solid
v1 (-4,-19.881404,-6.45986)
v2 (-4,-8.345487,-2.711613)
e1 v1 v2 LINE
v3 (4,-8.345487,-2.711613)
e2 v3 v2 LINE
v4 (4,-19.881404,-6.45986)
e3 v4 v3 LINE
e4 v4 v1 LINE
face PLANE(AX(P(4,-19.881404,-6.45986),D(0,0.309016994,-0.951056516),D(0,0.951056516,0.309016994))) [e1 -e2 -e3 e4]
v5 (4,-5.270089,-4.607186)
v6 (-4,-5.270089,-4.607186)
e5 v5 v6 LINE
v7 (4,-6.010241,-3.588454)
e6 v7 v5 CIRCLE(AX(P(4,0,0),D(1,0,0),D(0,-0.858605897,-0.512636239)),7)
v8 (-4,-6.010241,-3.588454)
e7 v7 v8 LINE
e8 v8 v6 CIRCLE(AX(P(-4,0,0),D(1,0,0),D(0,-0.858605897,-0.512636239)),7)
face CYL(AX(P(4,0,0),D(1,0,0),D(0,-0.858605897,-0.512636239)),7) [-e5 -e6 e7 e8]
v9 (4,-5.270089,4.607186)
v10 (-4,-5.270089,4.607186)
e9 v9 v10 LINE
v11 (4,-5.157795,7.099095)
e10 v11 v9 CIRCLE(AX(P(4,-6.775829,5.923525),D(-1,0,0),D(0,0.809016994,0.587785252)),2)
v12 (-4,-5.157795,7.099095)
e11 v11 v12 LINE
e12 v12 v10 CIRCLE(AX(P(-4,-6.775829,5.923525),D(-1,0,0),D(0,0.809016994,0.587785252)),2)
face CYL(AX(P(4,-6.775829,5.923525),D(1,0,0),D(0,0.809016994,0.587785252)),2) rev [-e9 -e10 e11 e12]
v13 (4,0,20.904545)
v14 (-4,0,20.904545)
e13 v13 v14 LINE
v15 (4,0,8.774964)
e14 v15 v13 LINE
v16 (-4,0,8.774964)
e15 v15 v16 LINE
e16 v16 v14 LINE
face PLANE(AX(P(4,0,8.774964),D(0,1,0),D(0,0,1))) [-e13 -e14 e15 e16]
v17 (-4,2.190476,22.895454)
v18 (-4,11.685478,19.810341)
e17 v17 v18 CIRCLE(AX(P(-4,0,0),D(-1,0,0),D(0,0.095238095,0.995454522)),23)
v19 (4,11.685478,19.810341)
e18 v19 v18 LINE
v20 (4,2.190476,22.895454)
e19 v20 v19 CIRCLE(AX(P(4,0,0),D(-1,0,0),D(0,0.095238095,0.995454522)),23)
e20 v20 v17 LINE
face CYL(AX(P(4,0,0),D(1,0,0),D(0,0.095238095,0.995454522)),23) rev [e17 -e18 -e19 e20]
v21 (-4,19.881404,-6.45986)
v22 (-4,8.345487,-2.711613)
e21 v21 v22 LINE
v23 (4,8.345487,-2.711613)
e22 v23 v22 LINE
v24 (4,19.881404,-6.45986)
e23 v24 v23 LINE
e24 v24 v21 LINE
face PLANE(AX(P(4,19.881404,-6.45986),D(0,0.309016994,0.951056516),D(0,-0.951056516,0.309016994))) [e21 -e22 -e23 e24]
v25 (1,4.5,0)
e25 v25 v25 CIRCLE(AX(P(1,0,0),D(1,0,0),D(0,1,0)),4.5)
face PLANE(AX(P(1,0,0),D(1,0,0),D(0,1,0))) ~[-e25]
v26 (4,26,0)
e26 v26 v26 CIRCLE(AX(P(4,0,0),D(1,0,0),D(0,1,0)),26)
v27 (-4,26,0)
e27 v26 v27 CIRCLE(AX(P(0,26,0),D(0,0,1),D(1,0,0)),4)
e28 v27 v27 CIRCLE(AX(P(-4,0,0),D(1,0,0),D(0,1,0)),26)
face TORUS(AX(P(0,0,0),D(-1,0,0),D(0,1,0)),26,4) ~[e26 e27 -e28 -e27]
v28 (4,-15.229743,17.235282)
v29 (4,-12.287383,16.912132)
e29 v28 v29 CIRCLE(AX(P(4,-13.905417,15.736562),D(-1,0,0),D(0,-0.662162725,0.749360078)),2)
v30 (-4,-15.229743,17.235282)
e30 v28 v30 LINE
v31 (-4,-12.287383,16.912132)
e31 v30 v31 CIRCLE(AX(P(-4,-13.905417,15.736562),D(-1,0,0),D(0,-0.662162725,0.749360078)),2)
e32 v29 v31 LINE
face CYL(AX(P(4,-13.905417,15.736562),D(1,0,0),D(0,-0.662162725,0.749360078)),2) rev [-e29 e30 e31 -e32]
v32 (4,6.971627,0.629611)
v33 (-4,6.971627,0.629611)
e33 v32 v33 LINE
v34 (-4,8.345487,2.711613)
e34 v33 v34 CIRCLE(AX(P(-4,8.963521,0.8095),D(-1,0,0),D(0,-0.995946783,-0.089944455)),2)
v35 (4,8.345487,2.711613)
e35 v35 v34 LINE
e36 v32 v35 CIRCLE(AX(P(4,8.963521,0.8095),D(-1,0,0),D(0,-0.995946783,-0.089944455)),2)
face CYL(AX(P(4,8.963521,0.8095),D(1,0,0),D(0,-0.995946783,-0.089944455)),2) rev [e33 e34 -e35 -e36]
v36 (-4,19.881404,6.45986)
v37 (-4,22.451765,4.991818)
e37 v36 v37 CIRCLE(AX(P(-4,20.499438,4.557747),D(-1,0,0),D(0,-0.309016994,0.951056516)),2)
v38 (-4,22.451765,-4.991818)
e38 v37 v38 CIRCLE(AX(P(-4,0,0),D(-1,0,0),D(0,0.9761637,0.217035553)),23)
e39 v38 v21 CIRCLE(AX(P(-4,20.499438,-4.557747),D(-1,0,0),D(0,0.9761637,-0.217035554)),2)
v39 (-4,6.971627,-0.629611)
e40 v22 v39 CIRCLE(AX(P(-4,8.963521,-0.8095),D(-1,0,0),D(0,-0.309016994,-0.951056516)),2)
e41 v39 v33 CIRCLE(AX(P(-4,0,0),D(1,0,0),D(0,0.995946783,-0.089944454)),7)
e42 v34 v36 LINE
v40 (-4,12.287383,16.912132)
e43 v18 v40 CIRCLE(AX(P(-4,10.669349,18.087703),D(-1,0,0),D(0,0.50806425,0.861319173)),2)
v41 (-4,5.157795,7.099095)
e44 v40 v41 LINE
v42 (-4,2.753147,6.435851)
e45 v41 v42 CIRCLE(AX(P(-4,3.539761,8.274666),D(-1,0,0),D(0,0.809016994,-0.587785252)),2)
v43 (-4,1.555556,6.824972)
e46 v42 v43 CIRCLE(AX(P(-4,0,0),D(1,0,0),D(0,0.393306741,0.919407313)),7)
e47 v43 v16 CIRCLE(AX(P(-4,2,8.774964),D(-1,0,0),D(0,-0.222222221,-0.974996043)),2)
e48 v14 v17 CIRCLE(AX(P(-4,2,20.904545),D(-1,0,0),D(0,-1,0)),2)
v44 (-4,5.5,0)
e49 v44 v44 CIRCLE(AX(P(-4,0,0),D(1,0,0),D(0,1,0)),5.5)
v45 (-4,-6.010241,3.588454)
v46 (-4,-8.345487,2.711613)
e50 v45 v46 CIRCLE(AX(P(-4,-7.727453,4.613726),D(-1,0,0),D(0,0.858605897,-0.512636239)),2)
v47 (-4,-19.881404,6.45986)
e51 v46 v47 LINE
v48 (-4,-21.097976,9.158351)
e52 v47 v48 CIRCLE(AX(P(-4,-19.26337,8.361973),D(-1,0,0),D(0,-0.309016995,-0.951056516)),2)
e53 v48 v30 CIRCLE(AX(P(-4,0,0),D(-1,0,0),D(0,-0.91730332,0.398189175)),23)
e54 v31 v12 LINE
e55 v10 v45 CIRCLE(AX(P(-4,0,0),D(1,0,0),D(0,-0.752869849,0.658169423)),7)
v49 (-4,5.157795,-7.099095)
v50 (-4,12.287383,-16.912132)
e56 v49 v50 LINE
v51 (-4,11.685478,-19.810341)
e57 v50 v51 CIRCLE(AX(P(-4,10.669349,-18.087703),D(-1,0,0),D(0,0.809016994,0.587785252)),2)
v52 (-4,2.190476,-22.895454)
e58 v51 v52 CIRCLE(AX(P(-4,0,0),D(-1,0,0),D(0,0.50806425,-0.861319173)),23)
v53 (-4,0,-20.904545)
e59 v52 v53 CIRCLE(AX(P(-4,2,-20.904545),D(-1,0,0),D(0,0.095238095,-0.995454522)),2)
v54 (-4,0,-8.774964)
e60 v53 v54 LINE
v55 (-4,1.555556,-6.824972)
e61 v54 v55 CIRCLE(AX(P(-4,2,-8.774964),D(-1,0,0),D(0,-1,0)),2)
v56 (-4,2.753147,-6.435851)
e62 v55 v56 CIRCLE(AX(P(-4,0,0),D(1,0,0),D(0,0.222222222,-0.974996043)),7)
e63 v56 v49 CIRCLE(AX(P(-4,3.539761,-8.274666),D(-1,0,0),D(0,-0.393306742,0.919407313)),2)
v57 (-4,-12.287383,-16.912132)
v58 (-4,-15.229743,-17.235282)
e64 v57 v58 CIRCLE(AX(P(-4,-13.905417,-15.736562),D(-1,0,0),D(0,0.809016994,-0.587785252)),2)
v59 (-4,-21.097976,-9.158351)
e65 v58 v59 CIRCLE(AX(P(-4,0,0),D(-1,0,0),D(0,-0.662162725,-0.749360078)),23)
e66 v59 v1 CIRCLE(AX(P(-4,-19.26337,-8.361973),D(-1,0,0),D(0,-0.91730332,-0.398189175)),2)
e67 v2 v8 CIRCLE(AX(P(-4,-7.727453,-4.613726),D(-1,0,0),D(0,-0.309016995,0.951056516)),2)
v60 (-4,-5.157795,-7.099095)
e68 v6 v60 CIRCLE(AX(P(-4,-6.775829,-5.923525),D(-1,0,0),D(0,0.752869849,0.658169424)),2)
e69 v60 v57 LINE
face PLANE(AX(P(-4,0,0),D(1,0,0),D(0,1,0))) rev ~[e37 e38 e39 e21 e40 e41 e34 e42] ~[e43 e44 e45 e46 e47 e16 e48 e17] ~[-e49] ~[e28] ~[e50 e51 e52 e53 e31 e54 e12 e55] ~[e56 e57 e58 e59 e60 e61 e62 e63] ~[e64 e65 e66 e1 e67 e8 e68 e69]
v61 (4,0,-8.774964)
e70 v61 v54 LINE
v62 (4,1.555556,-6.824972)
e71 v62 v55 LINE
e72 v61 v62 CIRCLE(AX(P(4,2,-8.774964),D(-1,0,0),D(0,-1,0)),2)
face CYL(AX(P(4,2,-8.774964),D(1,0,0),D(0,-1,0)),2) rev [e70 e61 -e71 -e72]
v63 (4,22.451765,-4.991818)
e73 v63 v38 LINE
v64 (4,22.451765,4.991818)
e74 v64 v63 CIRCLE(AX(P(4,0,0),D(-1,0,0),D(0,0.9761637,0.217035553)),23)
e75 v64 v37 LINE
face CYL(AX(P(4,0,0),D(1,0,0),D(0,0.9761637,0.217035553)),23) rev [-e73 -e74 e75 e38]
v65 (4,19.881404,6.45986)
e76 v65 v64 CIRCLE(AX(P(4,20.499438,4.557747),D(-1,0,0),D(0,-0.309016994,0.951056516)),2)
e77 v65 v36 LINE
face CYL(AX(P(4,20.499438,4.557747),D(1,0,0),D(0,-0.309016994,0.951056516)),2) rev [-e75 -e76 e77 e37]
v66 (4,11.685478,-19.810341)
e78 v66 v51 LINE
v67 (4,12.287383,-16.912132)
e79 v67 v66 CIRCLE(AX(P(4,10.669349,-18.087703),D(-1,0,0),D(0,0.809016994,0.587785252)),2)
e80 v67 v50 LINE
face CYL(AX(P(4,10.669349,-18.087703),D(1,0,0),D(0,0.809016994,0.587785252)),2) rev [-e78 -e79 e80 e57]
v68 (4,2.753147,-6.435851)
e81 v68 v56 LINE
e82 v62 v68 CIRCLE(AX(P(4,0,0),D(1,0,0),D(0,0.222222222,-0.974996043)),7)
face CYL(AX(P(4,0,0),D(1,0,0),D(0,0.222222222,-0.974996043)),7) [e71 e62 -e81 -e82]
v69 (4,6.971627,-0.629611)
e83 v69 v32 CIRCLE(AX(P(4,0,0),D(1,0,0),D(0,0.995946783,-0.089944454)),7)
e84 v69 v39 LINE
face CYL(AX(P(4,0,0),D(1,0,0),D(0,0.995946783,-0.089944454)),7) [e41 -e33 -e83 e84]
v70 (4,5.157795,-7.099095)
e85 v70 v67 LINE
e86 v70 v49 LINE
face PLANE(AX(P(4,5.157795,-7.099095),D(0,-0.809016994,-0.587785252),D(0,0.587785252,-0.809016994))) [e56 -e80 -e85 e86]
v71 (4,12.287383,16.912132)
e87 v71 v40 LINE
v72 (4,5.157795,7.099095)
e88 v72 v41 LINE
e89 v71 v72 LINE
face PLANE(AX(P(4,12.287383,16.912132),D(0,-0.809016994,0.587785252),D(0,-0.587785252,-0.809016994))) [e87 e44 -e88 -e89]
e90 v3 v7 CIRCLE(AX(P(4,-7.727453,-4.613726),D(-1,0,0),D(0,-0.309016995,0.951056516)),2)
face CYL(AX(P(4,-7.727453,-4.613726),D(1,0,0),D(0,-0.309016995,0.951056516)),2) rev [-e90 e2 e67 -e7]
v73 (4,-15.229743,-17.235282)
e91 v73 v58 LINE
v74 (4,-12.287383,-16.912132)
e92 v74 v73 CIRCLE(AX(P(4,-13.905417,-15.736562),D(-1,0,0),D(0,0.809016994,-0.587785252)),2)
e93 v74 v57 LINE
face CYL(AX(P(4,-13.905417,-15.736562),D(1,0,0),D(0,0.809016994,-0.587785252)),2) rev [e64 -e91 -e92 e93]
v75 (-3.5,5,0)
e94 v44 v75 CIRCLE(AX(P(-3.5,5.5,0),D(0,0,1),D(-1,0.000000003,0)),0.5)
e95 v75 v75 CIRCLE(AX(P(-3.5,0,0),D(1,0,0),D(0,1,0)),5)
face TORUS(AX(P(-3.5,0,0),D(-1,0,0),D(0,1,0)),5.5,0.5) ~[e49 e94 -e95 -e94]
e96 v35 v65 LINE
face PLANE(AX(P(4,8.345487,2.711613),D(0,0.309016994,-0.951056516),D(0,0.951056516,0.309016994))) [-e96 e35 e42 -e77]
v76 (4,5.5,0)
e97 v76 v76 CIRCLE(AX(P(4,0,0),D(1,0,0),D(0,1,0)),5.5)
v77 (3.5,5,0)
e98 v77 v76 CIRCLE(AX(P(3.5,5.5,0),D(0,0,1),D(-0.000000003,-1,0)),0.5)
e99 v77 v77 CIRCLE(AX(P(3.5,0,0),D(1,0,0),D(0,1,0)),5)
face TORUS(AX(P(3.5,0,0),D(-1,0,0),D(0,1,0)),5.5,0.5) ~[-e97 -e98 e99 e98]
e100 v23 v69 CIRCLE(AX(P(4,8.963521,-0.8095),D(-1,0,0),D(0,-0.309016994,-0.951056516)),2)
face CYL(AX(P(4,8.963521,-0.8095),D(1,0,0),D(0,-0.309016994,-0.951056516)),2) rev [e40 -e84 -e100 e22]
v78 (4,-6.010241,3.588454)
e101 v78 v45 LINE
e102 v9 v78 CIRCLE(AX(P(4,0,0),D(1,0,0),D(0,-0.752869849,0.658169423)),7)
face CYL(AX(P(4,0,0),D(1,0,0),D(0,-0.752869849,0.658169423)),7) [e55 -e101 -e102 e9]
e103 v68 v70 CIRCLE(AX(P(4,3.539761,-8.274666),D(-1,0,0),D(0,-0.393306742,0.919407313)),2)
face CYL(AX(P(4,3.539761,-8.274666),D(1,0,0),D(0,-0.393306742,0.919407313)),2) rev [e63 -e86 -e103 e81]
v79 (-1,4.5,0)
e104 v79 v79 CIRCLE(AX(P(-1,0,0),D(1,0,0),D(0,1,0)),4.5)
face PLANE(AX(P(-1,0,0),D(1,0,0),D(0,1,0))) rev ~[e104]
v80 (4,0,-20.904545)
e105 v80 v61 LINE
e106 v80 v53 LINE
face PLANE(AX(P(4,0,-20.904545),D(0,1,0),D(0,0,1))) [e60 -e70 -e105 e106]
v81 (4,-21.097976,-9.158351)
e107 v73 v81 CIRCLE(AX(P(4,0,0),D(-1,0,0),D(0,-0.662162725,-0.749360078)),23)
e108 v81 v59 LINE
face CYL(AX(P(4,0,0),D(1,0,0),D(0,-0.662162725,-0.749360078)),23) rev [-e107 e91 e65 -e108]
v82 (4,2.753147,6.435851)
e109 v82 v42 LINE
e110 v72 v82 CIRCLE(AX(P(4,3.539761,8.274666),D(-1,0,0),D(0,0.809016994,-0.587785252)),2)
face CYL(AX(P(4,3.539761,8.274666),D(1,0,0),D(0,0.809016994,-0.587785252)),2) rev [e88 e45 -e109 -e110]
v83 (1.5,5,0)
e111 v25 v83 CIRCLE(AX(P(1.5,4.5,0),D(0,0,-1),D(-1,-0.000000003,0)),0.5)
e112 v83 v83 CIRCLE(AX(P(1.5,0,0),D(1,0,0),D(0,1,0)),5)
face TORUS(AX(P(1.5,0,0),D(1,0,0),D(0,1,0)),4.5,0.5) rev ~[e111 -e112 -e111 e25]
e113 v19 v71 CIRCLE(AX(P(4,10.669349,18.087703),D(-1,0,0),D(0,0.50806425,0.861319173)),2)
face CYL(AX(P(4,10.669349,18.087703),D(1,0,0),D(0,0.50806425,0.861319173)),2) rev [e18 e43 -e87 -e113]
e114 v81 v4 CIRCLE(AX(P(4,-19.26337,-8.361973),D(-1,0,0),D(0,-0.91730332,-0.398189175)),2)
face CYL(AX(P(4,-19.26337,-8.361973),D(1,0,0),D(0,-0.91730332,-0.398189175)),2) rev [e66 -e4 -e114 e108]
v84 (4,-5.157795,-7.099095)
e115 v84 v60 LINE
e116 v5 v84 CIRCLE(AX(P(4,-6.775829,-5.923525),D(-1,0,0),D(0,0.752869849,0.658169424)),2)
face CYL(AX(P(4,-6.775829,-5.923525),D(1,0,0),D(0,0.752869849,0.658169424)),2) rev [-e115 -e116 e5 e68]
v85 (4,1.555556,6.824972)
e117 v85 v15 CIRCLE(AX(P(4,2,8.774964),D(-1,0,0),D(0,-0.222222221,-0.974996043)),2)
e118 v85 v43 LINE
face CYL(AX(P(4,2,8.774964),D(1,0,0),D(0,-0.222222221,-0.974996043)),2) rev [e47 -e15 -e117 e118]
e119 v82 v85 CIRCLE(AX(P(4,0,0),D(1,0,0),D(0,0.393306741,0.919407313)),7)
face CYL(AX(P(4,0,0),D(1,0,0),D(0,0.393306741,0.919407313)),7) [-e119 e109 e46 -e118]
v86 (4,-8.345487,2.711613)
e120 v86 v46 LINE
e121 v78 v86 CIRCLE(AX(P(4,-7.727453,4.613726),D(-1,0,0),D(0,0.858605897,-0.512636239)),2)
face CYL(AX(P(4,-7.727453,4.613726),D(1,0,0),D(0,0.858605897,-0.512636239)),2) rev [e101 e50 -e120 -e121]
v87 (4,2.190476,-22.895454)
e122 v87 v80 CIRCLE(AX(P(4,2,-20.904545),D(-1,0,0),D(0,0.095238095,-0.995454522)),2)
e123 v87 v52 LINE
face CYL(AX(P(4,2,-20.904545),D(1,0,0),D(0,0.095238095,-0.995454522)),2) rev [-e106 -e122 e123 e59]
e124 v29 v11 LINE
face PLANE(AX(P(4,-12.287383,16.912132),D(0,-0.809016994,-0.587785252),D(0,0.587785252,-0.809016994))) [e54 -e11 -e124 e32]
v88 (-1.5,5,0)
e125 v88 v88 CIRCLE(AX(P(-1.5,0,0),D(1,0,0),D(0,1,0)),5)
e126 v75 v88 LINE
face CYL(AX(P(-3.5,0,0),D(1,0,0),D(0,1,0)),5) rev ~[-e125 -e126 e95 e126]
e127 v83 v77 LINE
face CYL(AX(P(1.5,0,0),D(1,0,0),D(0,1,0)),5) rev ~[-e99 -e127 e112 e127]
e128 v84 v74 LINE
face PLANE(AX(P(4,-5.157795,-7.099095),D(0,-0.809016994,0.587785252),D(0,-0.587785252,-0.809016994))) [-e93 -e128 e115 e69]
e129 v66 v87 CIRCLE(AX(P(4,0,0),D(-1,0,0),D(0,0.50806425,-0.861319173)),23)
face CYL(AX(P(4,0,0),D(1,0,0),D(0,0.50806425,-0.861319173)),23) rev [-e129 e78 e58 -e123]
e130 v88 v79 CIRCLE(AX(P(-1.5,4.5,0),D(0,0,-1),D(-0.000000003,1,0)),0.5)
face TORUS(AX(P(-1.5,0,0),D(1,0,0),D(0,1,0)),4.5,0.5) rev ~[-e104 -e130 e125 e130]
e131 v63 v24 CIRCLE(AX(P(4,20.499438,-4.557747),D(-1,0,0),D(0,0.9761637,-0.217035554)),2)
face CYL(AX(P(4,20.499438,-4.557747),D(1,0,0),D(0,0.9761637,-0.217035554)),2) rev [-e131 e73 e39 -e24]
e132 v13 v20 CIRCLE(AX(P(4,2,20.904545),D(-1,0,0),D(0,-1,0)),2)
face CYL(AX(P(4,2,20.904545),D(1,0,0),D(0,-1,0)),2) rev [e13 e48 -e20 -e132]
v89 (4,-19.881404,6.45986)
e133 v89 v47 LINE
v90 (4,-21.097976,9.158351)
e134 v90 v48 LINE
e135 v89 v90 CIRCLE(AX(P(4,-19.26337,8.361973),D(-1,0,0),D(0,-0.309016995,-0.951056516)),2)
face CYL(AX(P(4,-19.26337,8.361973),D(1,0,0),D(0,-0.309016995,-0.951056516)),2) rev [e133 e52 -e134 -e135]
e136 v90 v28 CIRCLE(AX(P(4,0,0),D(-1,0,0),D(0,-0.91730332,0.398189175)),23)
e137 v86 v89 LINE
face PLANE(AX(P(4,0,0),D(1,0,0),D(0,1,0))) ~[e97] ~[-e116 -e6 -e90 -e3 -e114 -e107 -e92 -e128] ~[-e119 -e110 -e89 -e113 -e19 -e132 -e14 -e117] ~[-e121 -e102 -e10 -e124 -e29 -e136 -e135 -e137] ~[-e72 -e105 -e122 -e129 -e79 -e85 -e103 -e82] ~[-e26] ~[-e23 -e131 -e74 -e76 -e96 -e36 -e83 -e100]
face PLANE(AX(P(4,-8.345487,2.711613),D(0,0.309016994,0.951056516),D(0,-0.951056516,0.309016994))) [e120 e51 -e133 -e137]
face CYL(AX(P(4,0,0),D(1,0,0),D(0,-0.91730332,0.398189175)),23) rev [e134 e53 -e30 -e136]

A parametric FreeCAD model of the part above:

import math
import FreeCAD as App
import Part
import Sketcher
from FreeCAD import Vector
Q = App.Units.Quantity

doc = App.newDocument("Part")
params = doc.addObject("Spreadsheet::Sheet", "Params")
for row, (alias, value) in enumerate([
    ("sketch1_radius", "4 mm"),
    ("sketch1_radius2", "0.5 mm"),
    ("sketch1_height", "4.5 mm"),
    ("sketch1_height2", "20.5 mm"),
    ("revolution_angle", "360 deg"),
    ("sketch2_radius", "2 mm"),
    ("sketch2_radius2", "7 mm"),
    ("sketch2_radius3", "23 mm"),
    ("pocket1_length", "8 mm"),
], start=1):
    params.set(f"A{row}", alias)
    params.set(f"B{row}", "=" + value)
    params.setAlias(f"B{row}", alias)

body = doc.addObject("PartDesign::Body", "Body")

# Sketch on XY plane
sketch1 = doc.addObject("Sketcher::SketchObject", "Sketch")
body.addObject(sketch1)
sketch1.AttachmentSupport = (doc.XY_Plane, [""])
sketch1.MapMode = "FlatFace"
sketch1.addGeometry(Part.LineSegment(Vector(-1, 0, 0), Vector(1, 0, 0)), False)
sketch1.addGeometry(Part.LineSegment(Vector(1, 0, 0), Vector(1, 4.5, 0)), False)
sketch1.addGeometry(Part.ArcOfCircle(Part.Circle(Vector(1.5, 4.5, 0), Vector(0, 0, 1), 0.5), math.radians(90), math.radians(180)), False)
sketch1.addGeometry(Part.LineSegment(Vector(1.5, 5, 0), Vector(3.5, 5, 0)), False)
sketch1.addGeometry(Part.ArcOfCircle(Part.Circle(Vector(3.5, 5.5, 0), Vector(0, 0, 1), 0.5), math.radians(-90), math.radians(0)), False)
sketch1.addGeometry(Part.LineSegment(Vector(4, 5.5, 0), Vector(4, 26, 0)), False)
sketch1.addGeometry(Part.ArcOfCircle(Part.Circle(Vector(0, 26, 0), Vector(0, 0, 1), 4), math.radians(0), math.radians(180)), False)
sketch1.addGeometry(Part.LineSegment(Vector(-4, 26, 0), Vector(-4, 5.5, 0)), False)
sketch1.addGeometry(Part.ArcOfCircle(Part.Circle(Vector(-3.5, 5.5, 0), Vector(0, 0, 1), 0.5), math.radians(180), math.radians(270)), False)
sketch1.addGeometry(Part.LineSegment(Vector(-3.5, 5, 0), Vector(-1.5, 5, 0)), False)
sketch1.addGeometry(Part.ArcOfCircle(Part.Circle(Vector(-1.5, 4.5, 0), Vector(0, 0, 1), 0.5), math.radians(0), math.radians(90)), False)
sketch1.addGeometry(Part.LineSegment(Vector(-1, 4.5, 0), Vector(-1, 0, 0)), False)
sketch1.addConstraint(Sketcher.Constraint("Coincident", 0, 2, 1, 1))
sketch1.addConstraint(Sketcher.Constraint("Tangent", 1, 2, 2, 2))
sketch1.addConstraint(Sketcher.Constraint("Tangent", 2, 1, 3, 1))
sketch1.addConstraint(Sketcher.Constraint("Tangent", 3, 2, 4, 1))
sketch1.addConstraint(Sketcher.Constraint("Tangent", 4, 2, 5, 1))
sketch1.addConstraint(Sketcher.Constraint("Tangent", 5, 2, 6, 1))
sketch1.addConstraint(Sketcher.Constraint("Tangent", 6, 2, 7, 1))
sketch1.addConstraint(Sketcher.Constraint("Tangent", 7, 2, 8, 1))
sketch1.addConstraint(Sketcher.Constraint("Tangent", 8, 2, 9, 1))
sketch1.addConstraint(Sketcher.Constraint("Tangent", 9, 2, 10, 2))
sketch1.addConstraint(Sketcher.Constraint("Tangent", 10, 1, 11, 1))
sketch1.addConstraint(Sketcher.Constraint("Coincident", 11, 2, 0, 1))
sketch1.addConstraint(Sketcher.Constraint("Horizontal", 0))
sketch1.addConstraint(Sketcher.Constraint("Vertical", 1))
sketch1.addConstraint(Sketcher.Constraint("Horizontal", 3))
sketch1.addConstraint(Sketcher.Constraint("Vertical", 5))
sketch1.addConstraint(Sketcher.Constraint("Vertical", 7))
sketch1.addConstraint(Sketcher.Constraint("Horizontal", 9))
sketch1.addConstraint(Sketcher.Constraint("Vertical", 11))
sketch1.addConstraint(Sketcher.Constraint("Equal", 2, 4))
sketch1.addConstraint(Sketcher.Constraint("Equal", 4, 8))
sketch1.addConstraint(Sketcher.Constraint("Equal", 8, 10))
sketch1.addConstraint(Sketcher.Constraint("Symmetric", 0, 2, 11, 2, -1, 1))
sketch1.addConstraint(Sketcher.Constraint("Symmetric", 4, 3, 8, 3, -2))
sketch1.addConstraint(Sketcher.Constraint("Equal", 0, 3))
sketch1.addConstraint(Sketcher.Constraint("Radius", 6, 4.0))
sketch1.addConstraint(Sketcher.Constraint("Radius", 2, 0.5))
sketch1.addConstraint(Sketcher.Constraint("DistanceY", 1, 1, 1, 2, 4.5))
sketch1.addConstraint(Sketcher.Constraint("DistanceY", 5, 1, 5, 2, 20.5))
sketch1.setExpression("Constraints[25]", "Params.sketch1_radius")
sketch1.setExpression("Constraints[26]", "Params.sketch1_radius2")
sketch1.setExpression("Constraints[27]", "Params.sketch1_height")
sketch1.setExpression("Constraints[28]", "Params.sketch1_height2")
revolution = doc.addObject("PartDesign::Revolution", "Revolution")
body.addObject(revolution)
revolution.Profile = sketch1
revolution.ReferenceAxis = (sketch1, ["H_Axis"])
revolution.setExpression("Angle", "Params.revolution_angle")

# Sketch on YZ plane
sketch2 = doc.addObject("Sketcher::SketchObject", "Sketch001")
body.addObject(sketch2)
sketch2.AttachmentSupport = (doc.YZ_Plane, [""])
sketch2.MapMode = "FlatFace"
sketch2.AttachmentOffset = App.Placement(Vector(0, 0, 4), App.Rotation())
sketch2.addGeometry(Part.LineSegment(Vector(12.3, -16.9, 0), Vector(5.2, -7.1, 0)), False)
sketch2.addGeometry(Part.ArcOfCircle(Part.Circle(Vector(3.5, -8.3, 0), Vector(0, 0, 1), 2), math.radians(36), math.radians(113)), False)
sketch2.addGeometry(Part.ArcOfCircle(Part.Circle(Vector(0, 0, 0), Vector(0, 0, 1), 7), math.radians(-77.16), math.radians(-66.84)), False)
sketch2.addGeometry(Part.ArcOfCircle(Part.Circle(Vector(2, -8.8, 0), Vector(0, 0, 1), 2), math.radians(103), math.radians(180)), False)
sketch2.addGeometry(Part.LineSegment(Vector(0, -8.8, 0), Vector(0, -20.9, 0)), False)
sketch2.addGeometry(Part.ArcOfCircle(Part.Circle(Vector(2, -20.9, 0), Vector(0, 0, 1), 2), math.radians(180), math.radians(275)), False)
sketch2.addGeometry(Part.ArcOfCircle(Part.Circle(Vector(0, 0, 0), Vector(0, 0, 1), 23), math.radians(-85), math.radians(-59)), False)
sketch2.addGeometry(Part.ArcOfCircle(Part.Circle(Vector(10.7, -18.1, 0), Vector(0, 0, 1), 2), math.radians(-59), math.radians(36)), False)
sketch2.addConstraint(Sketcher.Constraint("Tangent", 0, 2, 1, 1))
sketch2.addConstraint(Sketcher.Constraint("Tangent", 1, 2, 2, 2))
sketch2.addConstraint(Sketcher.Constraint("Tangent", 2, 1, 3, 1))
sketch2.addConstraint(Sketcher.Constraint("Tangent", 3, 2, 4, 1))
sketch2.addConstraint(Sketcher.Constraint("Tangent", 4, 2, 5, 1))
sketch2.addConstraint(Sketcher.Constraint("Tangent", 5, 2, 6, 1))
sketch2.addConstraint(Sketcher.Constraint("Tangent", 6, 2, 7, 1))
sketch2.addConstraint(Sketcher.Constraint("Tangent", 7, 2, 0, 1))
sketch2.addConstraint(Sketcher.Constraint("Vertical", 4))
sketch2.addConstraint(Sketcher.Constraint("Coincident", 2, 3, -1, 1))
sketch2.addConstraint(Sketcher.Constraint("Coincident", 6, 3, -1, 1))
sketch2.addConstraint(Sketcher.Constraint("Equal", 1, 3))
sketch2.addConstraint(Sketcher.Constraint("Equal", 3, 5))
sketch2.addConstraint(Sketcher.Constraint("Equal", 5, 7))
sketch2.addConstraint(Sketcher.Constraint("PointOnObject", 3, 2, -2))
sketch2.addConstraint(Sketcher.Constraint("Radius", 1, 2.0))
sketch2.addConstraint(Sketcher.Constraint("Radius", 2, 7.0))
sketch2.addConstraint(Sketcher.Constraint("Radius", 6, 23.0))
sketch2.addConstraint(Sketcher.Constraint("Angle", 0, Q("126 deg")))
sketch2.addConstraint(Sketcher.Constraint("DistanceX", 5, 2, 6, 2, 9.495002))
sketch2.setExpression("Constraints[15]", "Params.sketch2_radius")
sketch2.setExpression("Constraints[16]", "Params.sketch2_radius2")
sketch2.setExpression("Constraints[17]", "Params.sketch2_radius3")
pocket1 = doc.addObject("PartDesign::Pocket", "Pocket")
body.addObject(pocket1)
pocket1.Profile = sketch2
pocket1.setExpression("Length", "Params.pocket1_length")
doc.recompute()

polarpattern = doc.addObject("PartDesign::PolarPattern", "PolarPattern")
body.addObject(polarpattern)
polarpattern.Originals = [pocket1]
polarpattern.Axis = (doc.X_Axis, [""])
polarpattern.Angle = 360
polarpattern.Occurrences = 5
body.Tip = polarpattern

doc.recompute()
